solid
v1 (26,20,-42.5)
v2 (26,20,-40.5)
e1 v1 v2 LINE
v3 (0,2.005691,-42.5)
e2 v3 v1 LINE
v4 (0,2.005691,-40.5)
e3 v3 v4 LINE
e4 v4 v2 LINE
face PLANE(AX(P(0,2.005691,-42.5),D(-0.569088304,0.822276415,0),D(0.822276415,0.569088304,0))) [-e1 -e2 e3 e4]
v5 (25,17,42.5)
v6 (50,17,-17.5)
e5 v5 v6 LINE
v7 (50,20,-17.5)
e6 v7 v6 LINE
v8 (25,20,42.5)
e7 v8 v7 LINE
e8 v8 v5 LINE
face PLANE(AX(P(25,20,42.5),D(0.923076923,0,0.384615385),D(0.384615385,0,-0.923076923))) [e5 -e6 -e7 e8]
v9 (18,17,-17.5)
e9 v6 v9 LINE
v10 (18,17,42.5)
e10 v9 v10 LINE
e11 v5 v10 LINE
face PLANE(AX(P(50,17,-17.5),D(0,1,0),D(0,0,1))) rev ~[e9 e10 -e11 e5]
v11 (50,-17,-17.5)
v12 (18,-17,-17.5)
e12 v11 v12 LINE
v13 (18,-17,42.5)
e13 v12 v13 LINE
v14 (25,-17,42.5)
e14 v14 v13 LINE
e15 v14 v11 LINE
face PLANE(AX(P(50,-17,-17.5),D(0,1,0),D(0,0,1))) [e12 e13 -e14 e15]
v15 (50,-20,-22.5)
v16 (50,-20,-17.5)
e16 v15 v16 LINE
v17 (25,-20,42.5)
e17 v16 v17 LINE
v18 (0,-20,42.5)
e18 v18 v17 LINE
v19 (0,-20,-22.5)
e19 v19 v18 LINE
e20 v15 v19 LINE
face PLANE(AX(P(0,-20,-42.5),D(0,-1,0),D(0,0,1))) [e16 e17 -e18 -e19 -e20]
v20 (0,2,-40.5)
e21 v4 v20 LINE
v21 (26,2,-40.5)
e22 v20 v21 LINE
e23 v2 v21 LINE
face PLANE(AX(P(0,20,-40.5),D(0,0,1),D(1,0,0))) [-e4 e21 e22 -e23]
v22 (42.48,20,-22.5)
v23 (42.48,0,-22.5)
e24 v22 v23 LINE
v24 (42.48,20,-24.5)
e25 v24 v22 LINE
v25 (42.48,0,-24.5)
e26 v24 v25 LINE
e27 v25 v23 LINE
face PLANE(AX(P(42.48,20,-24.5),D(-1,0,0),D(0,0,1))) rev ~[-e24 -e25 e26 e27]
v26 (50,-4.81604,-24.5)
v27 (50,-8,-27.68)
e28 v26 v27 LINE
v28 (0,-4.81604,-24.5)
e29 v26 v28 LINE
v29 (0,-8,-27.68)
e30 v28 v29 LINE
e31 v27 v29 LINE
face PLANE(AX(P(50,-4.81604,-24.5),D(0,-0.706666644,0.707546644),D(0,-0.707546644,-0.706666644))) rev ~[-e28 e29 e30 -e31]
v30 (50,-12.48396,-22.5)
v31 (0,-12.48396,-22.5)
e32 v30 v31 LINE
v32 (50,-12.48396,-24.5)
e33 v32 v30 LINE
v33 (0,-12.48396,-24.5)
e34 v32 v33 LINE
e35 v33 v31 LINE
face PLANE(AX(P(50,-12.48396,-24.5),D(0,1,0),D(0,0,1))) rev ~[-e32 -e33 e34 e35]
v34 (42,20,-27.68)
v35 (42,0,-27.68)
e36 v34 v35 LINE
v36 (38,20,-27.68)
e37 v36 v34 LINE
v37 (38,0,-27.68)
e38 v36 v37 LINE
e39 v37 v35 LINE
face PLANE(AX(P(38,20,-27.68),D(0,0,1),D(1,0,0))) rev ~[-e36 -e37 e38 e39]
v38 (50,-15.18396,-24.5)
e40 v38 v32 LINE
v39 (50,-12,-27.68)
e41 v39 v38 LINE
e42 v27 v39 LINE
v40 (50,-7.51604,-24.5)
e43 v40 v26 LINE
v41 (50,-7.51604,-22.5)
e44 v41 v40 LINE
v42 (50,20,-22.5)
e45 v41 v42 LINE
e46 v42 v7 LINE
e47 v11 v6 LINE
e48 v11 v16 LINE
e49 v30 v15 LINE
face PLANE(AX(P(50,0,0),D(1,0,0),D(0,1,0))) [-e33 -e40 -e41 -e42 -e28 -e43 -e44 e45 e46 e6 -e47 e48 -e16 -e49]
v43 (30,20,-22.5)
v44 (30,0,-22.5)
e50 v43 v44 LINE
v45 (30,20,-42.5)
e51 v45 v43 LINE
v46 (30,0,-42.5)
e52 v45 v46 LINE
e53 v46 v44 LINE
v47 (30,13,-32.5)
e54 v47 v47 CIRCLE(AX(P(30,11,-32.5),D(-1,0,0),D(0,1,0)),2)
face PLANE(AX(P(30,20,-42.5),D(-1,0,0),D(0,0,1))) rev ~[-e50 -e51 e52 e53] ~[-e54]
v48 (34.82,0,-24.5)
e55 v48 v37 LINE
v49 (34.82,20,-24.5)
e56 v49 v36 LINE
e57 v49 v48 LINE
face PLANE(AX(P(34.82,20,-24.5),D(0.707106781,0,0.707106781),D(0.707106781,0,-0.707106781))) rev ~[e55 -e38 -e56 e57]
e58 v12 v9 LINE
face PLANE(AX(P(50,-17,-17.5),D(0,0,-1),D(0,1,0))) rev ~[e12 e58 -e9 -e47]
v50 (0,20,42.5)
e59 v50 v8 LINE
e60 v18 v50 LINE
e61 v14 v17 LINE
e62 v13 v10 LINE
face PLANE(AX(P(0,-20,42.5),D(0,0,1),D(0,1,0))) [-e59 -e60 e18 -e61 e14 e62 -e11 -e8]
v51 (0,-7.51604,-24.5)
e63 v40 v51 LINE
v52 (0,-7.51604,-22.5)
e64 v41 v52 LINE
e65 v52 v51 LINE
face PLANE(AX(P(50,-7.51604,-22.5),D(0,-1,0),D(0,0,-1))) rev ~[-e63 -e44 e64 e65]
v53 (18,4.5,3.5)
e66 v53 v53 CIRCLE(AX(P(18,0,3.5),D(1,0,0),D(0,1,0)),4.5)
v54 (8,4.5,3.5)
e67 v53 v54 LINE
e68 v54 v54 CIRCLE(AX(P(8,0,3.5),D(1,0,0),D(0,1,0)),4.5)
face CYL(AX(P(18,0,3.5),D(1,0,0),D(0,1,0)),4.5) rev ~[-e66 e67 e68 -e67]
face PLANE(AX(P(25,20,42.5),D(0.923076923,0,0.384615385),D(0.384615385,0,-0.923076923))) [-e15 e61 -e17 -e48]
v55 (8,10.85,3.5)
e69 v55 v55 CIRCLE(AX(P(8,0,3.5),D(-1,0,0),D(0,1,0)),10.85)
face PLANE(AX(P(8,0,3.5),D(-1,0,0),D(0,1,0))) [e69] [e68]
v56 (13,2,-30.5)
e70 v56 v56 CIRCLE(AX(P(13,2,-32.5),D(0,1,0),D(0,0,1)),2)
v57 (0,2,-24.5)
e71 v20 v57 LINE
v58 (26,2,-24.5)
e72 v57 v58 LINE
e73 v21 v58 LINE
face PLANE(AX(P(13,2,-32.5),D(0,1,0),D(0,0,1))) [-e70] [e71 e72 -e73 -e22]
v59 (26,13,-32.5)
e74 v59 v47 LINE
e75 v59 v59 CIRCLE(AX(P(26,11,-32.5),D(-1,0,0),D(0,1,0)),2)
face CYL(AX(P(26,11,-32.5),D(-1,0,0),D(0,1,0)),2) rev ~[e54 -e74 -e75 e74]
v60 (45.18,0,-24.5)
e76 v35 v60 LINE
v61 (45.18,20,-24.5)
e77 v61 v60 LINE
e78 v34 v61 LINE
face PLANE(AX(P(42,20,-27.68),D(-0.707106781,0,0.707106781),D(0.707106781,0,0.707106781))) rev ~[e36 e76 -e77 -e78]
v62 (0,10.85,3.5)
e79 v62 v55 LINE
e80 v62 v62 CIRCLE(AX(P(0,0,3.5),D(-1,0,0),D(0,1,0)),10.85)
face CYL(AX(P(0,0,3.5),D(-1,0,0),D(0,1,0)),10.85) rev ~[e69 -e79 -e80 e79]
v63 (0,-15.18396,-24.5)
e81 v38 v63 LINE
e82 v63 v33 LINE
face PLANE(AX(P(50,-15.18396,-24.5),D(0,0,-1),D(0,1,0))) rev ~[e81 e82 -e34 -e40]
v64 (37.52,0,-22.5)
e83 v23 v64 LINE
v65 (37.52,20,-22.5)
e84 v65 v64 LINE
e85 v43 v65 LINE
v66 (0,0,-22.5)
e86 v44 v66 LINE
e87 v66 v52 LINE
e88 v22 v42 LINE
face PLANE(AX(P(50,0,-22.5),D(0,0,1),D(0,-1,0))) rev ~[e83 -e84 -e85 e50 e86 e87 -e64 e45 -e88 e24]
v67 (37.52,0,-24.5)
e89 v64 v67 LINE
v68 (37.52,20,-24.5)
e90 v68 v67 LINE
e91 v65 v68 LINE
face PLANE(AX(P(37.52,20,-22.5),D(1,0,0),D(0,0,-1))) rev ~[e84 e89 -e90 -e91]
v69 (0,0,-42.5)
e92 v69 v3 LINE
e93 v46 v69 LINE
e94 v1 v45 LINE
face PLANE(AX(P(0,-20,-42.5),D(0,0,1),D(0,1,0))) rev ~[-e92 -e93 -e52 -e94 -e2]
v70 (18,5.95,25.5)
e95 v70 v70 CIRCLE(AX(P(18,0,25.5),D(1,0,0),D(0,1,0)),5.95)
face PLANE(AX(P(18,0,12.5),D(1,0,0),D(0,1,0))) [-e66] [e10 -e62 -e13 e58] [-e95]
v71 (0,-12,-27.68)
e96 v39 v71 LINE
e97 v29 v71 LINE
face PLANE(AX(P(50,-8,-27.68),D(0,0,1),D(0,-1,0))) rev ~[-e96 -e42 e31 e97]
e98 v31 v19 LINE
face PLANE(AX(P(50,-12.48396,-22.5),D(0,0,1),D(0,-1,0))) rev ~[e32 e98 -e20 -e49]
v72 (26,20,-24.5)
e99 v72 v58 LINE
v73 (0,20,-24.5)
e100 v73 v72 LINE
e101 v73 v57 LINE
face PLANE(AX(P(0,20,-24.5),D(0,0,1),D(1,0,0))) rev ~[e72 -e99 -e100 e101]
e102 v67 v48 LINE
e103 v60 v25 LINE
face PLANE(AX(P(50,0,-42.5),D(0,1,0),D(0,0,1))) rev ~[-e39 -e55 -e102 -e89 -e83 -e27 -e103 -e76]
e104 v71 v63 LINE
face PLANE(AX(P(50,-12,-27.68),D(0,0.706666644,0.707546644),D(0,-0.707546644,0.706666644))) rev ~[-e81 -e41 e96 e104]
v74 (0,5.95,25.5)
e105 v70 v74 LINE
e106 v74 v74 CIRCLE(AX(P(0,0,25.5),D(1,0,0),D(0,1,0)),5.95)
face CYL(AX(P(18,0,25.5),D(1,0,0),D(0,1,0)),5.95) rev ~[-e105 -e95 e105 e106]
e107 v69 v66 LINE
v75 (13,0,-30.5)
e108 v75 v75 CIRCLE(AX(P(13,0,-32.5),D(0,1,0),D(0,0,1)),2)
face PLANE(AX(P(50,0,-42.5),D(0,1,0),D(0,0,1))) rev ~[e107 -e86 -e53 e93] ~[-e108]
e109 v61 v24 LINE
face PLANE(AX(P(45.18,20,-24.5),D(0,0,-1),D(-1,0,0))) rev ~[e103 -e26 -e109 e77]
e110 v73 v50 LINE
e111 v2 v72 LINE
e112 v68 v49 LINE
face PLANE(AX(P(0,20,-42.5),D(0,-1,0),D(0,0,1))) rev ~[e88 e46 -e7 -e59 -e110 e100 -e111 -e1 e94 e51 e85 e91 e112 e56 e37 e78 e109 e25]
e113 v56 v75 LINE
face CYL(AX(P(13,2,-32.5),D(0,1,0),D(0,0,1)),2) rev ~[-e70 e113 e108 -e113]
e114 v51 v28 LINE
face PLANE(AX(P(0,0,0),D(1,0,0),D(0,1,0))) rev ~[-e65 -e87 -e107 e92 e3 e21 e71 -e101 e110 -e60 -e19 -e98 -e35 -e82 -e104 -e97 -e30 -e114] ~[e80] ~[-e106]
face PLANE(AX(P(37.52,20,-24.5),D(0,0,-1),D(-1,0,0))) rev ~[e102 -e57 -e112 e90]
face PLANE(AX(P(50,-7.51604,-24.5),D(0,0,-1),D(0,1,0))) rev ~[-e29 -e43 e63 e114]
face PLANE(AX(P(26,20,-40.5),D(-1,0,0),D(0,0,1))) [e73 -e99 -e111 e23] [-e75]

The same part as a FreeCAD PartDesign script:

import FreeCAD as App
import Part
import Sketcher
from FreeCAD import Vector

doc = App.newDocument("Part")
body = doc.addObject("PartDesign::Body", "Body")

sketch1 = doc.addObject("Sketcher::SketchObject", "Sketch")
body.addObject(sketch1)
sketch1.AttachmentSupport = (doc.YZ_Plane, [""])
sketch1.MapMode = "FlatFace"
sketch1.addGeometry([
    Part.LineSegment(Vector(-20, 42.5, 0), Vector(-20, -42.5, 0)),
    Part.LineSegment(Vector(-20, -42.5, 0), Vector(20, -42.5, 0)),
    Part.LineSegment(Vector(20, -42.5, 0), Vector(20, 42.5, 0)),
    Part.LineSegment(Vector(20, 42.5, 0), Vector(-20, 42.5, 0)),
], False)
sketch1.addConstraint([
    Sketcher.Constraint("Coincident", 0, 2, 1, 1),
    Sketcher.Constraint("Coincident", 1, 2, 2, 1),
    Sketcher.Constraint("Coincident", 2, 2, 3, 1),
    Sketcher.Constraint("Coincident", 3, 2, 0, 1),
    Sketcher.Constraint("Vertical", 0),
    Sketcher.Constraint("Horizontal", 1),
    Sketcher.Constraint("Vertical", 2),
    Sketcher.Constraint("Horizontal", 3),
    Sketcher.Constraint("Symmetric", 0, 2, 2, 2, -1, 1),
    Sketcher.Constraint("DistanceX", 1, 1, 1, 2, 40.0),
    Sketcher.Constraint("DistanceY", 0, 2, 0, 1, 85.0),
])
pad1 = doc.addObject("PartDesign::Pad", "Pad")
body.addObject(pad1)
pad1.Profile = sketch1
pad1.Length = 50

sketch2 = doc.addObject("Sketcher::SketchObject", "Sketch001")
body.addObject(sketch2)
sketch2.AttachmentSupport = (doc.YZ_Plane, [""])
sketch2.MapMode = "FlatFace"
sketch2.AttachmentOffset = App.Placement(Vector(0, 0, 50), App.Rotation())
sketch2.addGeometry([
    Part.LineSegment(Vector(-20, -22.5, 0), Vector(-20, -42.5, 0)),
    Part.LineSegment(Vector(-20, -42.5, 0), Vector(0, -42.5, 0)),
    Part.LineSegment(Vector(0, -42.5, 0), Vector(0, -22.5, 0)),
    Part.LineSegment(Vector(0, -22.5, 0), Vector(-7.51604, -22.5, 0)),
    Part.LineSegment(Vector(-7.51604, -22.5, 0), Vector(-7.51604, -24.5, 0)),
    Part.LineSegment(Vector(-7.51604, -24.5, 0), Vector(-4.81604, -24.5, 0)),
    Part.LineSegment(Vector(-4.81604, -24.5, 0), Vector(-8, -27.68, 0)),
    Part.LineSegment(Vector(-8, -27.68, 0), Vector(-12, -27.68, 0)),
    Part.LineSegment(Vector(-12, -27.68, 0), Vector(-15.18396, -24.5, 0)),
    Part.LineSegment(Vector(-15.18396, -24.5, 0), Vector(-12.48396, -24.5, 0)),
    Part.LineSegment(Vector(-12.48396, -24.5, 0), Vector(-12.48396, -22.5, 0)),
    Part.LineSegment(Vector(-12.48396, -22.5, 0), Vector(-20, -22.5, 0)),
], False)
sketch2.addConstraint([
    Sketcher.Constraint("Coincident", 0, 2, 1, 1),
    Sketcher.Constraint("Coincident", 1, 2, 2, 1),
    Sketcher.Constraint("Coincident", 2, 2, 3, 1),
    Sketcher.Constraint("Coincident", 3, 2, 4, 1),
    Sketcher.Constraint("Coincident", 4, 2, 5, 1),
    Sketcher.Constraint("Coincident", 5, 2, 6, 1),
    Sketcher.Constraint("Coincident", 6, 2, 7, 1),
    Sketcher.Constraint("Coincident", 7, 2, 8, 1),
    Sketcher.Constraint("Coincident", 8, 2, 9, 1),
    Sketcher.Constraint("Coincident", 9, 2, 10, 1),
    Sketcher.Constraint("Coincident", 10, 2, 11, 1),
    Sketcher.Constraint("Coincident", 11, 2, 0, 1),
    Sketcher.Constraint("Vertical", 0),
    Sketcher.Constraint("Horizontal", 1),
    Sketcher.Constraint("Vertical", 2),
    Sketcher.Constraint("Horizontal", 3),
    Sketcher.Constraint("Vertical", 4),
    Sketcher.Constraint("Horizontal", 5),
    Sketcher.Constraint("Horizontal", 7),
    Sketcher.Constraint("Horizontal", 9),
    Sketcher.Constraint("Vertical", 10),
    Sketcher.Constraint("Horizontal", 11),
    Sketcher.Constraint("PointOnObject", 1, 2, -2),
    Sketcher.Constraint("Horizontal", 5, 2, 8, 2),
    Sketcher.Constraint("Horizontal", 3, 2, 10, 2),
    Sketcher.Constraint("Equal", 5, 9),
    Sketcher.Constraint("Equal", 3, 11),
    Sketcher.Constraint("Equal", 1, 0),
    Sketcher.Constraint("Equal", 6, 8),
    Sketcher.Constraint("DistanceX", 1, 1, 1, 2, 20.0),
    Sketcher.Constraint("DistanceX", 7, 2, 7, 1, 4.0),
    Sketcher.Constraint("DistanceY", 4, 2, 4, 1, 2.0),
    Sketcher.Constraint("DistanceX", 5, 1, 5, 2, 2.7),
    Sketcher.Constraint("Distance", 6, 4.5),
    Sketcher.Constraint("DistanceY", 0, 2, -1, 1, 42.5),
    Sketcher.Constraint("DistanceY", 6, 2, -1, 1, 27.68),
])
pocket1 = doc.addObject("PartDesign::Pocket", "Pocket")
body.addObject(pocket1)
pocket1.Profile = sketch2
pocket1.Length = 50

sketch3 = doc.addObject("Sketcher::SketchObject", "Sketch002")
body.addObject(sketch3)
sketch3.AttachmentSupport = (doc.XZ_Plane, [""])
sketch3.MapMode = "FlatFace"
sketch3.AttachmentOffset = App.Placement(Vector(0, 0, -20), App.Rotation())
sketch3.addGeometry([
    Part.LineSegment(Vector(50, -22.5, 0), Vector(50, -42.5, 0)),
    Part.LineSegment(Vector(50, -42.5, 0), Vector(30, -42.5, 0)),
    Part.LineSegment(Vector(30, -42.5, 0), Vector(30, -22.5, 0)),
    Part.LineSegment(Vector(30, -22.5, 0), Vector(37.52, -22.5, 0)),
    Part.LineSegment(Vector(37.52, -22.5, 0), Vector(37.52, -24.5, 0)),
    Part.LineSegment(Vector(37.52, -24.5, 0), Vector(34.82, -24.5, 0)),
    Part.LineSegment(Vector(34.82, -24.5, 0), Vector(38, -27.68, 0)),
    Part.LineSegment(Vector(38, -27.68, 0), Vector(42, -27.68, 0)),
    Part.LineSegment(Vector(42, -27.68, 0), Vector(45.18, -24.5, 0)),
    Part.LineSegment(Vector(45.18, -24.5, 0), Vector(42.48, -24.5, 0)),
    Part.LineSegment(Vector(42.48, -24.5, 0), Vector(42.48, -22.5, 0)),
    Part.LineSegment(Vector(42.48, -22.5, 0), Vector(50, -22.5, 0)),
], False)
sketch3.addConstraint([
    Sketcher.Constraint("Coincident", 0, 2, 1, 1),
    Sketcher.Constraint("Coincident", 1, 2, 2, 1),
    Sketcher.Constraint("Coincident", 2, 2, 3, 1),
    Sketcher.Constraint("Coincident", 3, 2, 4, 1),
    Sketcher.Constraint("Coincident", 4, 2, 5, 1),
    Sketcher.Constraint("Coincident", 5, 2, 6, 1),
    Sketcher.Constraint("Coincident", 6, 2, 7, 1),
    Sketcher.Constraint("Coincident", 7, 2, 8, 1),
    Sketcher.Constraint("Coincident", 8, 2, 9, 1),
    Sketcher.Constraint("Coincident", 9, 2, 10, 1),
    Sketcher.Constraint("Coincident", 10, 2, 11, 1),
    Sketcher.Constraint("Coincident", 11, 2, 0, 1),
    Sketcher.Constraint("Vertical", 0),
    Sketcher.Constraint("Horizontal", 1),
    Sketcher.Constraint("Vertical", 2),
    Sketcher.Constraint("Horizontal", 3),
    Sketcher.Constraint("Vertical", 4),
    Sketcher.Constraint("Horizontal", 5),
    Sketcher.Constraint("Horizontal", 7),
    Sketcher.Constraint("Horizontal", 9),
    Sketcher.Constraint("Vertical", 10),
    Sketcher.Constraint("Horizontal", 11),
    Sketcher.Constraint("Perpendicular", 6, 8),
    Sketcher.Constraint("Horizontal", 5, 2, 8, 2),
    Sketcher.Constraint("Horizontal", 3, 2, 10, 2),
    Sketcher.Constraint("Equal", 5, 9),
    Sketcher.Constraint("Equal", 3, 11),
    Sketcher.Constraint("Equal", 1, 0),
    Sketcher.Constraint("Equal", 6, 8),
    Sketcher.Constraint("DistanceX", 1, 2, 1, 1, 20.0),
    Sketcher.Constraint("DistanceX", 7, 1, 7, 2, 4.0),
    Sketcher.Constraint("DistanceY", 4, 2, 4, 1, 2.0),
    Sketcher.Constraint("DistanceX", 5, 2, 5, 1, 2.7),
    Sketcher.Constraint("DistanceX", -1, 1, 0, 2, 50.0),
    Sketcher.Constraint("DistanceX", 3, 1, 3, 2, 7.52),
    Sketcher.Constraint("DistanceY", 0, 2, -1, 1, 42.5),
])
pocket2 = doc.addObject("PartDesign::Pocket", "Pocket001")
body.addObject(pocket2)
pocket2.Profile = sketch3
pocket2.Length = 20
pocket2.Reversed = True

sketch4 = doc.addObject("Sketcher::SketchObject", "Sketch003")
body.addObject(sketch4)
sketch4.AttachmentSupport = (doc.XZ_Plane, [""])
sketch4.MapMode = "FlatFace"
sketch4.AttachmentOffset = App.Placement(Vector(0, 0, -20), App.Rotation())
sketch4.addGeometry([
    Part.LineSegment(Vector(26, -40.5, 0), Vector(0, -40.5, 0)),
    Part.LineSegment(Vector(0, -40.5, 0), Vector(0, -24.5, 0)),
    Part.LineSegment(Vector(0, -24.5, 0), Vector(26, -24.5, 0)),
    Part.LineSegment(Vector(26, -24.5, 0), Vector(26, -40.5, 0)),
], False)
sketch4.addConstraint([
    Sketcher.Constraint("Coincident", 0, 2, 1, 1),
    Sketcher.Constraint("Coincident", 1, 2, 2, 1),
    Sketcher.Constraint("Coincident", 2, 2, 3, 1),
    Sketcher.Constraint("Coincident", 3, 2, 0, 1),
    Sketcher.Constraint("Horizontal", 0),
    Sketcher.Constraint("Vertical", 1),
    Sketcher.Constraint("Horizontal", 2),
    Sketcher.Constraint("Vertical", 3),
    Sketcher.Constraint("PointOnObject", 0, 2, -2),
    Sketcher.Constraint("DistanceX", 0, 2, 0, 1, 26.0),
    Sketcher.Constraint("DistanceY", 1, 1, 1, 2, 16.0),
    Sketcher.Constraint("DistanceY", 0, 2, -1, 1, 40.5),
])
pocket3 = doc.addObject("PartDesign::Pocket", "Pocket002")
body.addObject(pocket3)
pocket3.Profile = sketch4
pocket3.Length = 18
pocket3.Reversed = True

sketch5 = doc.addObject("Sketcher::SketchObject", "Sketch004")
body.addObject(sketch5)
sketch5.AttachmentSupport = (doc.XZ_Plane, [""])
sketch5.MapMode = "FlatFace"
sketch5.AttachmentOffset = App.Placement(Vector(0, 0, -2), App.Rotation())
sketch5.addGeometry(Part.Circle(Vector(13, -32.5, 0), Vector(0, 0, 1), 2), False)
sketch5.addConstraint([
    Sketcher.Constraint("Diameter", 0, 4.0),
    Sketcher.Constraint("DistanceX", -1, 1, 0, 3, 13.0),
    Sketcher.Constraint("DistanceY", 0, 3, -1, 1, 32.5),
])
pocket4 = doc.addObject("PartDesign::Pocket", "Pocket003")
body.addObject(pocket4)
pocket4.Profile = sketch5
pocket4.Length = 4
pocket4.Reversed = True

sketch6 = doc.addObject("Sketcher::SketchObject", "Sketch005")
body.addObject(sketch6)
sketch6.AttachmentSupport = (doc.YZ_Plane, [""])
sketch6.MapMode = "FlatFace"
sketch6.AttachmentOffset = App.Placement(Vector(0, 0, 26), App.Rotation())
sketch6.addGeometry(Part.Circle(Vector(11, -32.5, 0), Vector(0, 0, 1), 2), False)
sketch6.addConstraint([
    Sketcher.Constraint("Diameter", 0, 4.0),
    Sketcher.Constraint("DistanceX", -1, 1, 0, 3, 11.0),
    Sketcher.Constraint("DistanceY", 0, 3, -1, 1, 32.5),
])
pocket5 = doc.addObject("PartDesign::Pocket", "Pocket004")
body.addObject(pocket5)
pocket5.Profile = sketch6
pocket5.Length = 4
pocket5.Reversed = True

sketch7 = doc.addObject("Sketcher::SketchObject", "Sketch006")
body.addObject(sketch7)
sketch7.AttachmentSupport = (doc.XY_Plane, [""])
sketch7.MapMode = "FlatFace"
sketch7.AttachmentOffset = App.Placement(Vector(0, 0, -42.5), App.Rotation())
sketch7.addGeometry([
    Part.LineSegment(Vector(26, 20, 0), Vector(0, 2.005691, 0)),
    Part.LineSegment(Vector(0, 2.005691, 0), Vector(0, 20, 0)),
    Part.LineSegment(Vector(0, 20, 0), Vector(26, 20, 0)),
], False)
sketch7.addConstraint([
    Sketcher.Constraint("Coincident", 0, 2, 1, 1),
    Sketcher.Constraint("Coincident", 1, 2, 2, 1),
    Sketcher.Constraint("Coincident", 2, 2, 0, 1),
    Sketcher.Constraint("Vertical", 1),
    Sketcher.Constraint("Horizontal", 2),
    Sketcher.Constraint("PointOnObject", 0, 2, -2),
    Sketcher.Constraint("DistanceX", 2, 1, 2, 2, 26.0),
    Sketcher.Constraint("DistanceY", -1, 1, 1, 2, 20.0),
    Sketcher.Constraint("DistanceY", 1, 1, 1, 2, 17.994309),
])
pocket6 = doc.addObject("PartDesign::Pocket", "Pocket005")
body.addObject(pocket6)
pocket6.Profile = sketch7
pocket6.Length = 2
pocket6.Reversed = True

sketch8 = doc.addObject("Sketcher::SketchObject", "Sketch007")
body.addObject(sketch8)
sketch8.AttachmentSupport = (doc.YZ_Plane, [""])
sketch8.MapMode = "FlatFace"
sketch8.AttachmentOffset = App.Placement(Vector(0, 0, 50), App.Rotation())
sketch8.addGeometry([
    Part.LineSegment(Vector(-17, 42.5, 0), Vector(-17, -17.5, 0)),
    Part.LineSegment(Vector(-17, -17.5, 0), Vector(17, -17.5, 0)),
    Part.LineSegment(Vector(17, -17.5, 0), Vector(17, 42.5, 0)),
    Part.LineSegment(Vector(17, 42.5, 0), Vector(-17, 42.5, 0)),
], False)
sketch8.addConstraint([
    Sketcher.Constraint("Coincident", 0, 2, 1, 1),
    Sketcher.Constraint("Coincident", 1, 2, 2, 1),
    Sketcher.Constraint("Coincident", 2, 2, 3, 1),
    Sketcher.Constraint("Coincident", 3, 2, 0, 1),
    Sketcher.Constraint("Vertical", 0),
    Sketcher.Constraint("Horizontal", 1),
    Sketcher.Constraint("Vertical", 2),
    Sketcher.Constraint("Horizontal", 3),
    Sketcher.Constraint("DistanceX", 1, 1, 1, 2, 34.0),
    Sketcher.Constraint("DistanceY", 0, 2, 0, 1, 60.0),
    Sketcher.Constraint("DistanceX", 0, 2, -1, 1, 17.0),
    Sketcher.Constraint("DistanceY", 0, 2, -1, 1, 17.5),
])
pocket7 = doc.addObject("PartDesign::Pocket", "Pocket006")
body.addObject(pocket7)
pocket7.Profile = sketch8
pocket7.Length = 32

sketch9 = doc.addObject("Sketcher::SketchObject", "Sketch008")
body.addObject(sketch9)
sketch9.AttachmentSupport = (doc.YZ_Plane, [""])
sketch9.MapMode = "FlatFace"
sketch9.AttachmentOffset = App.Placement(Vector(0, 0, 18), App.Rotation())
sketch9.addGeometry([
    Part.Circle(Vector(0, 3.5, 0), Vector(0, 0, 1), 4.5),
    Part.Circle(Vector(0, 25.5, 0), Vector(0, 0, 1), 5.95),
], False)
sketch9.addConstraint([
    Sketcher.Constraint("PointOnObject", 0, 3, -2),
    Sketcher.Constraint("PointOnObject", 1, 3, -2),
    Sketcher.Constraint("Diameter", 0, 9.0),
    Sketcher.Constraint("Diameter", 1, 11.9),
    Sketcher.Constraint("DistanceY", 0, 3, 1, 3, 22.0),
    Sketcher.Constraint("DistanceY", -1, 1, 0, 3, 3.5),
])
pocket8 = doc.addObject("PartDesign::Pocket", "Pocket007")
body.addObject(pocket8)
pocket8.Profile = sketch9
pocket8.Length = 18

sketch10 = doc.addObject("Sketcher::SketchObject", "Sketch009")
body.addObject(sketch10)
sketch10.AttachmentSupport = (doc.YZ_Plane, [""])
sketch10.MapMode = "FlatFace"
sketch10.addGeometry(Part.Circle(Vector(0, 3.5, 0), Vector(0, 0, 1), 10.85), False)
sketch10.addConstraint([
    Sketcher.Constraint("PointOnObject", 0, 3, -2),
    Sketcher.Constraint("Diameter", 0, 21.7),
    Sketcher.Constraint("DistanceY", -1, 1, 0, 3, 3.5),
])
pocket9 = doc.addObject("PartDesign::Pocket", "Pocket008")
body.addObject(pocket9)
pocket9.Profile = sketch10
pocket9.Length = 8
pocket9.Reversed = True

sketch11 = doc.addObject("Sketcher::SketchObject", "Sketch010")
body.addObject(sketch11)
sketch11.AttachmentSupport = (doc.XZ_Plane, [""])
sketch11.MapMode = "FlatFace"
sketch11.AttachmentOffset = App.Placement(Vector(0, 0, -20), App.Rotation())
sketch11.addGeometry([
    Part.LineSegment(Vector(50, 42.5, 0), Vector(50, -17.5, 0)),
    Part.LineSegment(Vector(50, -17.5, 0), Vector(25, 42.5, 0)),
    Part.LineSegment(Vector(25, 42.5, 0), Vector(50, 42.5, 0)),
], False)
sketch11.addConstraint([
    Sketcher.Constraint("Coincident", 0, 2, 1, 1),
    Sketcher.Constraint("Coincident", 1, 2, 2, 1),
    Sketcher.Constraint("Coincident", 2, 2, 0, 1),
    Sketcher.Constraint("Vertical", 0),
    Sketcher.Constraint("Horizontal", 2),
    Sketcher.Constraint("DistanceX", 2, 1, 2, 2, 25.0),
    Sketcher.Constraint("DistanceY", 0, 2, 0, 1, 60.0),
    Sketcher.Constraint("DistanceX", -1, 1, 0, 2, 50.0),
    Sketcher.Constraint("DistanceY", 0, 2, -1, 1, 17.5),
])
pocket10 = doc.addObject("PartDesign::Pocket", "Pocket009")
body.addObject(pocket10)
pocket10.Profile = sketch11
pocket10.Type = "ThroughAll"
pocket10.Reversed = True

doc.recompute()
